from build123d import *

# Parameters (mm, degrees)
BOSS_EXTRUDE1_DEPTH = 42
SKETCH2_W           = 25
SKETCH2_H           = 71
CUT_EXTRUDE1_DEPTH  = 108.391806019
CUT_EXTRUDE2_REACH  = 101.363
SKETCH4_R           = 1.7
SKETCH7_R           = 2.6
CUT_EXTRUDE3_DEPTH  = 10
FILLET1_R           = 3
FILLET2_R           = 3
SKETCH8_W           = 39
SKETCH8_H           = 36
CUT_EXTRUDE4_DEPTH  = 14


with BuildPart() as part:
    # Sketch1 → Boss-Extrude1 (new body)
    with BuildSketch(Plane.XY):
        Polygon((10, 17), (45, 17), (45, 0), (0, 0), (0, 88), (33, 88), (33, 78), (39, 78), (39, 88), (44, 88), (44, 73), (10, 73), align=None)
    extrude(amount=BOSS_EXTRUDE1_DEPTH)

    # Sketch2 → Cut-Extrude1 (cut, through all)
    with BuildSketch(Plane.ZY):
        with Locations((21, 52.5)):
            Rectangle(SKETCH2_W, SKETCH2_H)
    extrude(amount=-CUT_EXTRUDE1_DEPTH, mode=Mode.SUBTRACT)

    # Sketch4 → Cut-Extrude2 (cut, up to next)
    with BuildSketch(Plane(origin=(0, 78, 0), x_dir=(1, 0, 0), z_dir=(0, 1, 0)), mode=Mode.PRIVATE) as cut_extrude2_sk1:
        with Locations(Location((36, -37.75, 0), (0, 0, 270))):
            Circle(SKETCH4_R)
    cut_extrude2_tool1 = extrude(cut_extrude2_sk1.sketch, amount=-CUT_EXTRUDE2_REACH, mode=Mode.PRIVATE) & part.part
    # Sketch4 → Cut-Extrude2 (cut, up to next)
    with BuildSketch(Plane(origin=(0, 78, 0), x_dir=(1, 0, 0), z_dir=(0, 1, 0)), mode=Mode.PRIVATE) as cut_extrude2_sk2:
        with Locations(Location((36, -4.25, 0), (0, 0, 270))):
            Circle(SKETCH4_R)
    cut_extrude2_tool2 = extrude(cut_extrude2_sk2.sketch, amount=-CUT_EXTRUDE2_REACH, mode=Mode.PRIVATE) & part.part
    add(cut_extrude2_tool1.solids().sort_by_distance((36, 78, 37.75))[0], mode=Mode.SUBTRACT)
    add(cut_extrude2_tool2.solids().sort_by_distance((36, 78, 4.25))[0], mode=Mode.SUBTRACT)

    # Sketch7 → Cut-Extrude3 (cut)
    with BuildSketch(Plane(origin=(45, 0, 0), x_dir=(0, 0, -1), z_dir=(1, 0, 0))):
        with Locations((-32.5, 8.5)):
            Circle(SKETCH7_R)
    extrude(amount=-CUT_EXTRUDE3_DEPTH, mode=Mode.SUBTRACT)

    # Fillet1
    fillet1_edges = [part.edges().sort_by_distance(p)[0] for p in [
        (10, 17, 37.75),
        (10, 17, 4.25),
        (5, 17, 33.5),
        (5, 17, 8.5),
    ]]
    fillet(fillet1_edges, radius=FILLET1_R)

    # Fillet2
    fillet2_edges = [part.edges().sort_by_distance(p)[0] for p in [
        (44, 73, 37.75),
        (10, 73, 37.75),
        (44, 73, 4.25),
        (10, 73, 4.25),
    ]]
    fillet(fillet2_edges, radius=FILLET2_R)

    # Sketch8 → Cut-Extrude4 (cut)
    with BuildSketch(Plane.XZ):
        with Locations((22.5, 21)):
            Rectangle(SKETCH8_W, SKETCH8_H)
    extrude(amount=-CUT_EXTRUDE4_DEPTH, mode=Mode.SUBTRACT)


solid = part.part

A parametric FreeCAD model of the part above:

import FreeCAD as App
import Part
import Sketcher
Q = App.Units.Quantity


def edges_at(feature, points):
    """Names of the edges that pass closest to the given points."""
    edges = feature.Shape.Edges
    near = lambda p: min(range(len(edges)), key=lambda i: edges[i].distToShape(Part.Vertex(*p))[0])
    return sorted({f"Edge{near(p) + 1}" for p in points})

doc = App.newDocument("Part")
params = doc.addObject("Spreadsheet::Sheet", "Params")
for row, (alias, value) in enumerate([
    ("sketch1_width", "35 mm"),
    ("sketch1_width2", "34 mm"),
    ("sketch1_width3", "5 mm"),
    ("sketch1_width4", "6 mm"),
    ("sketch1_width5", "33 mm"),
    ("pad1_length", "42 mm"),
    ("sketch2_width", "71 mm"),
    ("sketch2_height", "25 mm"),
    ("sketch3_diameter", "3.4 mm"),
    ("sketch4_diameter", "3.4 mm"),
    ("sketch5_diameter", "5.2 mm"),
    ("pocket4_length", "10 mm"),
    ("fillet_radius", "3 mm"),
    ("fillet2_radius", "3 mm"),
    ("sketch6_width", "39 mm"),
    ("sketch6_height", "36 mm"),
    ("pocket5_length", "14 mm"),
], start=1):
    params.set(f"A{row}", alias)
    params.set(f"B{row}", "=" + value)
    params.setAlias(f"B{row}", alias)

body = doc.addObject("PartDesign::Body", "Body")

# Sketch on XY plane
sketch1 = body.newObject("Sketcher::SketchObject", "Sketch")
sketch1.AttachmentSupport = (doc.getObject("XY_Plane"), [""])
sketch1.MapMode = "FlatFace"
sketch1.addGeometry(Part.LineSegment(App.Vector(45, 17, 0), App.Vector(10, 17, 0)), False)
sketch1.addGeometry(Part.LineSegment(App.Vector(10, 17, 0), App.Vector(10, 73, 0)), False)
sketch1.addGeometry(Part.LineSegment(App.Vector(10, 73, 0), App.Vector(44, 73, 0)), False)
sketch1.addGeometry(Part.LineSegment(App.Vector(44, 73, 0), App.Vector(44, 88, 0)), False)
sketch1.addGeometry(Part.LineSegment(App.Vector(44, 88, 0), App.Vector(39, 88, 0)), False)
sketch1.addGeometry(Part.LineSegment(App.Vector(39, 88, 0), App.Vector(39, 78, 0)), False)
sketch1.addGeometry(Part.LineSegment(App.Vector(39, 78, 0), App.Vector(33, 78, 0)), False)
sketch1.addGeometry(Part.LineSegment(App.Vector(33, 78, 0), App.Vector(33, 88, 0)), False)
sketch1.addGeometry(Part.LineSegment(App.Vector(33, 88, 0), App.Vector(0, 88, 0)), False)
sketch1.addGeometry(Part.LineSegment(App.Vector(0, 88, 0), App.Vector(0, 0, 0)), False)
sketch1.addGeometry(Part.LineSegment(App.Vector(0, 0, 0), App.Vector(45, 0, 0)), False)
sketch1.addGeometry(Part.LineSegment(App.Vector(45, 0, 0), App.Vector(45, 17, 0)), False)
sketch1.addConstraint(Sketcher.Constraint("Coincident", 0, 2, 1, 1))
sketch1.addConstraint(Sketcher.Constraint("Coincident", 1, 2, 2, 1))
sketch1.addConstraint(Sketcher.Constraint("Coincident", 2, 2, 3, 1))
sketch1.addConstraint(Sketcher.Constraint("Coincident", 3, 2, 4, 1))
sketch1.addConstraint(Sketcher.Constraint("Coincident", 4, 2, 5, 1))
sketch1.addConstraint(Sketcher.Constraint("Coincident", 5, 2, 6, 1))
sketch1.addConstraint(Sketcher.Constraint("Coincident", 6, 2, 7, 1))
sketch1.addConstraint(Sketcher.Constraint("Coincident", 7, 2, 8, 1))
sketch1.addConstraint(Sketcher.Constraint("Coincident", 8, 2, 9, 1))
sketch1.addConstraint(Sketcher.Constraint("Coincident", 9, 2, 10, 1))
sketch1.addConstraint(Sketcher.Constraint("Coincident", 10, 2, 11, 1))
sketch1.addConstraint(Sketcher.Constraint("Coincident", 11, 2, 0, 1))
sketch1.addConstraint(Sketcher.Constraint("Horizontal", 0))
sketch1.addConstraint(Sketcher.Constraint("Vertical", 1))
sketch1.addConstraint(Sketcher.Constraint("Horizontal", 2))
sketch1.addConstraint(Sketcher.Constraint("Vertical", 3))
sketch1.addConstraint(Sketcher.Constraint("Horizontal", 4))
sketch1.addConstraint(Sketcher.Constraint("Vertical", 5))
sketch1.addConstraint(Sketcher.Constraint("Horizontal", 6))
sketch1.addConstraint(Sketcher.Constraint("Vertical", 7))
sketch1.addConstraint(Sketcher.Constraint("Horizontal", 8))
sketch1.addConstraint(Sketcher.Constraint("Vertical", 9))
sketch1.addConstraint(Sketcher.Constraint("Horizontal", 10))
sketch1.addConstraint(Sketcher.Constraint("Vertical", 11))
sketch1.addConstraint(Sketcher.Constraint("Coincident", 9, 2, -1, 1))
sketch1.addConstraint(Sketcher.Constraint("Horizontal", 4, 2, 7, 2))
sketch1.addConstraint(Sketcher.Constraint("DistanceX", 0, 2, 0, 1, Q("35 mm")))
sketch1.addConstraint(Sketcher.Constraint("DistanceX", 2, 1, 2, 2, Q("34 mm")))
sketch1.addConstraint(Sketcher.Constraint("DistanceX", 4, 2, 4, 1, Q("5 mm")))
sketch1.addConstraint(Sketcher.Constraint("DistanceX", 6, 2, 6, 1, Q("6 mm")))
sketch1.addConstraint(Sketcher.Constraint("DistanceX", 8, 2, 8, 1, Q("33 mm")))
sketch1.addConstraint(Sketcher.Constraint("DistanceY", 1, 1, 1, 2, Q("56 mm")))
sketch1.addConstraint(Sketcher.Constraint("DistanceY", 3, 1, 3, 2, Q("15 mm")))
sketch1.addConstraint(Sketcher.Constraint("DistanceY", 5, 2, 5, 1, Q("10 mm")))
sketch1.addConstraint(Sketcher.Constraint("DistanceY", 9, 2, 9, 1, Q("88 mm")))
sketch1.setExpression("Constraints[26]", "Params.sketch1_width")
sketch1.setExpression("Constraints[27]", "Params.sketch1_width2")
sketch1.setExpression("Constraints[28]", "Params.sketch1_width3")
sketch1.setExpression("Constraints[29]", "Params.sketch1_width4")
sketch1.setExpression("Constraints[30]", "Params.sketch1_width5")
pad1 = body.newObject("PartDesign::Pad", "Pad")
pad1.Profile = sketch1
pad1.setExpression("Length", "Params.pad1_length")

# Sketch on YZ plane
sketch2 = body.newObject("Sketcher::SketchObject", "Sketch001")
sketch2.AttachmentSupport = (doc.getObject("YZ_Plane"), [""])
sketch2.MapMode = "FlatFace"
sketch2.addGeometry(Part.LineSegment(App.Vector(88, 8, 0), App.Vector(17, 8, 0)), False)
sketch2.addGeometry(Part.LineSegment(App.Vector(17, 8, 0), App.Vector(17, 34, 0)), False)
sketch2.addGeometry(Part.LineSegment(App.Vector(17, 34, 0), App.Vector(88, 34, 0)), False)
sketch2.addGeometry(Part.LineSegment(App.Vector(88, 34, 0), App.Vector(88, 8, 0)), False)
sketch2.addConstraint(Sketcher.Constraint("Coincident", 0, 2, 1, 1))
sketch2.addConstraint(Sketcher.Constraint("Coincident", 1, 2, 2, 1))
sketch2.addConstraint(Sketcher.Constraint("Coincident", 2, 2, 3, 1))
sketch2.addConstraint(Sketcher.Constraint("Coincident", 3, 2, 0, 1))
sketch2.addConstraint(Sketcher.Constraint("Horizontal", 0))
sketch2.addConstraint(Sketcher.Constraint("Vertical", 1))
sketch2.addConstraint(Sketcher.Constraint("Horizontal", 2))
sketch2.addConstraint(Sketcher.Constraint("Vertical", 3))
sketch2.addConstraint(Sketcher.Constraint("DistanceX", 0, 2, 0, 1, Q("71 mm")))
sketch2.addConstraint(Sketcher.Constraint("DistanceY", 1, 1, 1, 2, Q("25 mm")))
sketch2.addConstraint(Sketcher.Constraint("DistanceX", -1, 1, 0, 2, Q("17 mm")))
sketch2.addConstraint(Sketcher.Constraint("DistanceY", -1, 1, 0, 2, Q("8.5 mm")))
sketch2.setExpression("Constraints[8]", "Params.sketch2_width")
sketch2.setExpression("Constraints[9]", "Params.sketch2_height")
pocket1 = body.newObject("PartDesign::Pocket", "Pocket")
pocket1.Profile = sketch2
pocket1.Type = "ThroughAll"
pocket1.Reversed = True

# Sketch on XZ plane
sketch3 = body.newObject("Sketcher::SketchObject", "Sketch002")
sketch3.AttachmentSupport = (doc.getObject("XZ_Plane"), [""])
sketch3.MapMode = "FlatFace"
sketch3.AttachmentOffset = App.Placement(App.Vector(0, 0, -78), App.Rotation())
sketch3.addGeometry(Part.Circle(App.Vector(36, 37.8, 0), App.Vector(0, 0, 1), 1.7), False)
sketch3.addConstraint(Sketcher.Constraint("Diameter", 0, Q("3.4 mm")))
sketch3.addConstraint(Sketcher.Constraint("DistanceX", -1, 1, 0, 3, Q("36 mm")))
sketch3.addConstraint(Sketcher.Constraint("DistanceY", -1, 1, 0, 3, Q("37.75 mm")))
sketch3.setExpression("Constraints[0]", "Params.sketch3_diameter")
pocket2 = body.newObject("PartDesign::Pocket", "Pocket001")
pocket2.Profile = sketch3
pocket2.Type = "UpToFirst"
pocket2.Reversed = True

# Sketch on XZ plane
sketch4 = body.newObject("Sketcher::SketchObject", "Sketch003")
sketch4.AttachmentSupport = (doc.getObject("XZ_Plane"), [""])
sketch4.MapMode = "FlatFace"
sketch4.AttachmentOffset = App.Placement(App.Vector(0, 0, -78), App.Rotation())
sketch4.addGeometry(Part.Circle(App.Vector(36, 4.2, 0), App.Vector(0, 0, 1), 1.7), False)
sketch4.addConstraint(Sketcher.Constraint("Diameter", 0, Q("3.4 mm")))
sketch4.addConstraint(Sketcher.Constraint("DistanceX", -1, 1, 0, 3, Q("36 mm")))
sketch4.addConstraint(Sketcher.Constraint("DistanceY", -1, 1, 0, 3, Q("4.25 mm")))
sketch4.setExpression("Constraints[0]", "Params.sketch4_diameter")
pocket3 = body.newObject("PartDesign::Pocket", "Pocket002")
pocket3.Profile = sketch4
pocket3.Type = "UpToFirst"
pocket3.Reversed = True

# Sketch on YZ plane
sketch5 = body.newObject("Sketcher::SketchObject", "Sketch004")
sketch5.AttachmentSupport = (doc.getObject("YZ_Plane"), [""])
sketch5.MapMode = "FlatFace"
sketch5.AttachmentOffset = App.Placement(App.Vector(0, 0, 45), App.Rotation())
sketch5.addGeometry(Part.Circle(App.Vector(8.5, 32.5, 0), App.Vector(0, 0, 1), 2.6), False)
sketch5.addConstraint(Sketcher.Constraint("Diameter", 0, Q("5.2 mm")))
sketch5.addConstraint(Sketcher.Constraint("DistanceX", -1, 1, 0, 3, Q("8.5 mm")))
sketch5.addConstraint(Sketcher.Constraint("DistanceY", -1, 1, 0, 3, Q("32.5 mm")))
sketch5.setExpression("Constraints[0]", "Params.sketch5_diameter")
pocket4 = body.newObject("PartDesign::Pocket", "Pocket003")
pocket4.Profile = sketch5
pocket4.setExpression("Length", "Params.pocket4_length")
doc.recompute()

fillet = body.newObject("PartDesign::Fillet", "Fillet")
fillet.Base = (pocket4, edges_at(pocket4, [
    (10, 17, 37.75),
    (10, 17, 4.25),
    (5, 17, 33.5),
    (5, 17, 8.5),
]))
fillet.setExpression("Radius", "Params.fillet_radius")
doc.recompute()

fillet2 = body.newObject("PartDesign::Fillet", "Fillet001")
fillet2.Base = (fillet, edges_at(fillet, [
    (44, 73, 37.75),
    (10, 73, 37.75),
    (44, 73, 4.25),
    (10, 73, 4.25),
]))
fillet2.setExpression("Radius", "Params.fillet2_radius")

# Sketch on XZ plane
sketch6 = body.newObject("Sketcher::SketchObject", "Sketch005")
sketch6.AttachmentSupport = (doc.getObject("XZ_Plane"), [""])
sketch6.MapMode = "FlatFace"
sketch6.addGeometry(Part.LineSegment(App.Vector(3, 39, 0), App.Vector(3, 3, 0)), False)
sketch6.addGeometry(Part.LineSegment(App.Vector(3, 3, 0), App.Vector(42, 3, 0)), False)
sketch6.addGeometry(Part.LineSegment(App.Vector(42, 3, 0), App.Vector(42, 39, 0)), False)
sketch6.addGeometry(Part.LineSegment(App.Vector(42, 39, 0), App.Vector(3, 39, 0)), False)
sketch6.addConstraint(Sketcher.Constraint("Coincident", 0, 2, 1, 1))
sketch6.addConstraint(Sketcher.Constraint("Coincident", 1, 2, 2, 1))
sketch6.addConstraint(Sketcher.Constraint("Coincident", 2, 2, 3, 1))
sketch6.addConstraint(Sketcher.Constraint("Coincident", 3, 2, 0, 1))
sketch6.addConstraint(Sketcher.Constraint("Vertical", 0))
sketch6.addConstraint(Sketcher.Constraint("Horizontal", 1))
sketch6.addConstraint(Sketcher.Constraint("Vertical", 2))
sketch6.addConstraint(Sketcher.Constraint("Horizontal", 3))
sketch6.addConstraint(Sketcher.Constraint("DistanceX", 1, 1, 1, 2, Q("39 mm")))
sketch6.addConstraint(Sketcher.Constraint("DistanceY", 0, 2, 0, 1, Q("36 mm")))
sketch6.addConstraint(Sketcher.Constraint("DistanceX", -1, 1, 0, 2, Q("3 mm")))
sketch6.addConstraint(Sketcher.Constraint("DistanceY", -1, 1, 0, 2, Q("3 mm")))
sketch6.setExpression("Constraints[8]", "Params.sketch6_width")
sketch6.setExpression("Constraints[9]", "Params.sketch6_height")
pocket5 = body.newObject("PartDesign::Pocket", "Pocket004")
pocket5.Profile = sketch6
pocket5.setExpression("Length", "Params.pocket5_length")

doc.recompute()
